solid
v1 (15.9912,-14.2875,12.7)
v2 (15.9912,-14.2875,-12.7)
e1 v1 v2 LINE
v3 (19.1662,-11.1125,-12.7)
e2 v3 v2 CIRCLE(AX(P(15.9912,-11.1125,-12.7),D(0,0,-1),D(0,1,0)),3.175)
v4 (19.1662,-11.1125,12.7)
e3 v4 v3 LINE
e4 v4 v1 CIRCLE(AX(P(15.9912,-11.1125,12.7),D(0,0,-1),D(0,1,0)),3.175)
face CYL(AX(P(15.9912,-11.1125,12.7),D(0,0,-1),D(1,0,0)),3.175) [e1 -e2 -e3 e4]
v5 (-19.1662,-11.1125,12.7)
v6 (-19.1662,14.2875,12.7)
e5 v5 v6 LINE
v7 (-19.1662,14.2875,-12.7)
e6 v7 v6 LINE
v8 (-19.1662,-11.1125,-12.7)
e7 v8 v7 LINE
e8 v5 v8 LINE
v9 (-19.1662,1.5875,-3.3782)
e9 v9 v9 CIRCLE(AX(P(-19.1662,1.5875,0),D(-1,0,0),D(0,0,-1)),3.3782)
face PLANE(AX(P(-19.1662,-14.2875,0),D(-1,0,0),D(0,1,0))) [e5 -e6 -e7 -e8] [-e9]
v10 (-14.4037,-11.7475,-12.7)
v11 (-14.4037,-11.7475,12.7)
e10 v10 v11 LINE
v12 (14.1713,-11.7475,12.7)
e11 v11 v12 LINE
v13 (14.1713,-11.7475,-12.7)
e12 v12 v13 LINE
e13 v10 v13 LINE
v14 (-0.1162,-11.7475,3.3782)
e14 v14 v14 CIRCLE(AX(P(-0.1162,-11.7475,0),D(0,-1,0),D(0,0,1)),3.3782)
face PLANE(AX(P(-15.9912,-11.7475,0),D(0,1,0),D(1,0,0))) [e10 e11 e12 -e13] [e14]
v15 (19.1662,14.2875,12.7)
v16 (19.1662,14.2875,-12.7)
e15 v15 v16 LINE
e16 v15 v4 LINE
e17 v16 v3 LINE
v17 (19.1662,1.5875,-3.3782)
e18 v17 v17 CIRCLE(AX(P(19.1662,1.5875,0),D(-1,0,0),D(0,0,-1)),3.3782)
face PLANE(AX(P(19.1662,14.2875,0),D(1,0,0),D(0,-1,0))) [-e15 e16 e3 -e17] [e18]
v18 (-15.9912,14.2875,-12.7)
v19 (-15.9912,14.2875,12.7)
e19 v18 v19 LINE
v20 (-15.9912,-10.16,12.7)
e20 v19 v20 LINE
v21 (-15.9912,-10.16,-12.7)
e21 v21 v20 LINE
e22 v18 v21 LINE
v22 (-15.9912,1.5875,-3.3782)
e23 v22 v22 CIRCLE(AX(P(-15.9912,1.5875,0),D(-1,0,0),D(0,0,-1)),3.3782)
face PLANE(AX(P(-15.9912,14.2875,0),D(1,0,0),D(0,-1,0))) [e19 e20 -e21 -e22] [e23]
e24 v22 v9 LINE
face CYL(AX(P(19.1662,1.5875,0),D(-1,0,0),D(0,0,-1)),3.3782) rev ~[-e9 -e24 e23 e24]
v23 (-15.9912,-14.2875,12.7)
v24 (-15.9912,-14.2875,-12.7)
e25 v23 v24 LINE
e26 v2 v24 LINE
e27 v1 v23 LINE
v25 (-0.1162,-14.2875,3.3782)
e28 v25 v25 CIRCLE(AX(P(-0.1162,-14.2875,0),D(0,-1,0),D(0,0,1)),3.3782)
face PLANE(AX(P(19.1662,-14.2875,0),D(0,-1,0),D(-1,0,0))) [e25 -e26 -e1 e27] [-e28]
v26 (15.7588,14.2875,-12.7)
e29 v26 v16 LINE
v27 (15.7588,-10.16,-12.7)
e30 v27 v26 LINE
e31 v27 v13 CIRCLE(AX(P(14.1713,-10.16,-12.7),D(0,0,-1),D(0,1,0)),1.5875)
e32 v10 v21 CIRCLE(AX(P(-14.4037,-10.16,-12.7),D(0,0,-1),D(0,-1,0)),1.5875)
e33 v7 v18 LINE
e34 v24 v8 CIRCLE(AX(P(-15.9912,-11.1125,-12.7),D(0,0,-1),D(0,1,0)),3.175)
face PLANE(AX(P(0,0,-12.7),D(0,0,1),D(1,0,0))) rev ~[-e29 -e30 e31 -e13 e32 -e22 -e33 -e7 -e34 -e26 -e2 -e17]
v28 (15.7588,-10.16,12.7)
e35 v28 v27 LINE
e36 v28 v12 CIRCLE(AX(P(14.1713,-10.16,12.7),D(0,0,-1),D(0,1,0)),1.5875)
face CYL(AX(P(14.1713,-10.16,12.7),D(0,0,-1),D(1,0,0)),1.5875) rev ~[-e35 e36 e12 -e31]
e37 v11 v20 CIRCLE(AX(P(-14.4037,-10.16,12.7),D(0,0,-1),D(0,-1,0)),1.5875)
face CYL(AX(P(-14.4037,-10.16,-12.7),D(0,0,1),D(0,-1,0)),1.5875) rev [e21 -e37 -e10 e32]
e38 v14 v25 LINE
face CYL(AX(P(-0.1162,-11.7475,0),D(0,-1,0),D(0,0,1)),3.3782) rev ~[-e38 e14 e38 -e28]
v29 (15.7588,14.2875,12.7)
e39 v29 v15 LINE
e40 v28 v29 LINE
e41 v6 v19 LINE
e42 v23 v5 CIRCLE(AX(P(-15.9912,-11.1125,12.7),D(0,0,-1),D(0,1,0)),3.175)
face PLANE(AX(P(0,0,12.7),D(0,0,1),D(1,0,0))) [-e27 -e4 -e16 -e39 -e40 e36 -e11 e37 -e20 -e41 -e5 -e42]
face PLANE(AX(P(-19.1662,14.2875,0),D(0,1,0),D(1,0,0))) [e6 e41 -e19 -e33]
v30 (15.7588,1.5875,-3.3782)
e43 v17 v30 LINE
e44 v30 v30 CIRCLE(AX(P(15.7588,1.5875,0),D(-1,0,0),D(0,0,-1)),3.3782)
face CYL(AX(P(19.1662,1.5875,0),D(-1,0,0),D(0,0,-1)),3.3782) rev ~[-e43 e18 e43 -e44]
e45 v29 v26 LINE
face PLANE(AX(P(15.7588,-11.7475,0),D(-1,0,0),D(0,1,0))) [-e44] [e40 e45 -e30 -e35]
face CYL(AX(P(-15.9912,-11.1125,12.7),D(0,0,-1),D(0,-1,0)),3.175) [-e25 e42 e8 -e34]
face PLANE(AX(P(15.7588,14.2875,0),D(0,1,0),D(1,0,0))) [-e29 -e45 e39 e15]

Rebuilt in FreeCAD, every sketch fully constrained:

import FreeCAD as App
import Part
import Sketcher
Q = App.Units.Quantity


def edges_at(feature, points):
    """Names of the edges that pass closest to the given points."""
    edges = feature.Shape.Edges
    near = lambda p: min(range(len(edges)), key=lambda i: edges[i].distToShape(Part.Vertex(*p))[0])
    return sorted({f"Edge{near(p) + 1}" for p in points})


def add_polygon(sketch, points):
    """Adds a closed chain of lines whose ends are joined by coincident constraints."""
    first, n = sketch.GeometryCount, len(points)
    for a, b in zip(points, points[1:] + points[:1]):
        sketch.addGeometry(Part.LineSegment(App.Vector(*a, 0), App.Vector(*b, 0)), False)
    for i in range(n):
        sketch.addConstraint(Sketcher.Constraint("Coincident", first + i, 2, first + (i + 1) % n, 1))

doc = App.newDocument("Part")
body = doc.addObject("PartDesign::Body", "Body")

# Sketch on XY plane
sketch1 = body.newObject("Sketcher::SketchObject", "Sketch")
sketch1.AttachmentSupport = (doc.getObject("XY_Plane"), [""])
sketch1.MapMode = "FlatFace"
add_polygon(sketch1, [(15.8, -11.7), (-16, -11.7), (-16, 14.3), (-19.2, 14.3), (-19.2, -14.3), (19.2, -14.3), (19.2, 14.3), (15.8, 14.3)])  # lines 0-7
sketch1.addConstraint(Sketcher.Constraint("Horizontal", 0))
sketch1.addConstraint(Sketcher.Constraint("Vertical", 1))
sketch1.addConstraint(Sketcher.Constraint("Horizontal", 2))
sketch1.addConstraint(Sketcher.Constraint("Vertical", 3))
sketch1.addConstraint(Sketcher.Constraint("Horizontal", 4))
sketch1.addConstraint(Sketcher.Constraint("Vertical", 5))
sketch1.addConstraint(Sketcher.Constraint("Horizontal", 6))
sketch1.addConstraint(Sketcher.Constraint("Vertical", 7))
sketch1.addConstraint(Sketcher.Constraint("Symmetric", 2, 2, 4, 2, -1, 1))
sketch1.addConstraint(Sketcher.Constraint("Horizontal", 2, 2, 5, 2))
sketch1.addConstraint(Sketcher.Constraint("DistanceX", 0, 2, 0, 1, Q("1.25 in")))
sketch1.addConstraint(Sketcher.Constraint("DistanceY", 3, 2, 0, 2, Q("0.1 in")))
sketch1.addConstraint(Sketcher.Constraint("DistanceX", 2, 2, 2, 1, Q("0.125 in")))
sketch1.addConstraint(Sketcher.Constraint("DistanceY", 3, 2, 3, 1, Q("1.125 in")))
sketch1.addConstraint(Sketcher.Constraint("DistanceX", 4, 1, 4, 2, Q("38.3324 mm")))
pad1 = body.newObject("PartDesign::Pad", "Pad")
pad1.Profile = sketch1
pad1.Length = Q("1 in")
pad1.Midplane = True

# Sketch on YZ plane
sketch2 = body.newObject("Sketcher::SketchObject", "Sketch001")
sketch2.AttachmentSupport = (doc.getObject("YZ_Plane"), [""])
sketch2.MapMode = "FlatFace"
sketch2.AttachmentOffset = App.Placement(App.Vector(0, 0, 19.1662), App.Rotation())
sketch2.addGeometry(Part.Circle(App.Vector(1.6, 0, 0), App.Vector(0, 0, 1), 3.4), False)
sketch2.addConstraint(Sketcher.Constraint("PointOnObject", 0, 3, -1))
sketch2.addConstraint(Sketcher.Constraint("Diameter", 0, Q("0.266 in")))
sketch2.addConstraint(Sketcher.Constraint("DistanceX", -1, 1, 0, 3, Q("0.0625 in")))
doc.recompute()
hole = body.newObject("PartDesign::Hole", "Hole")
hole.Profile = sketch2
hole.ThreadType = "None"
hole.Diameter = Q("0.266 in")
hole.DepthType = "ThroughAll"

# Sketch on XZ plane
sketch3 = body.newObject("Sketcher::SketchObject", "Sketch002")
sketch3.AttachmentSupport = (doc.getObject("XZ_Plane"), [""])
sketch3.MapMode = "FlatFace"
sketch3.AttachmentOffset = App.Placement(App.Vector(0, 0, 0.4625 * 25.4), App.Rotation())
sketch3.addGeometry(Part.Circle(App.Vector(-0.1, 0, 0), App.Vector(0, 0, 1), 3.4), False)
sketch3.addConstraint(Sketcher.Constraint("PointOnObject", 0, 3, -1))
sketch3.addConstraint(Sketcher.Constraint("Diameter", 0, Q("0.266 in")))
sketch3.addConstraint(Sketcher.Constraint("DistanceX", 0, 3, -1, 1, Q("0.1162 mm")))
doc.recompute()
hole2 = body.newObject("PartDesign::Hole", "Hole001")
hole2.Profile = sketch3
hole2.ThreadType = "None"
hole2.Diameter = Q("0.266 in")
hole2.DepthType = "ThroughAll"
hole2.Reversed = True
doc.recompute()

fillet = body.newObject("PartDesign::Fillet", "Fillet")
fillet.Base = (hole2, edges_at(hole2, [(-19.166, -14.287, 0), (19.166, -14.287, 0)]))
fillet.Radius = Q("0.125 in")
doc.recompute()

fillet2 = body.newObject("PartDesign::Fillet", "Fillet001")
fillet2.Base = (fillet, edges_at(fillet, [(-15.991, -11.748, 0), (15.759, -11.748, 0)]))
fillet2.Radius = Q("0.0625 in")

doc.recompute()
